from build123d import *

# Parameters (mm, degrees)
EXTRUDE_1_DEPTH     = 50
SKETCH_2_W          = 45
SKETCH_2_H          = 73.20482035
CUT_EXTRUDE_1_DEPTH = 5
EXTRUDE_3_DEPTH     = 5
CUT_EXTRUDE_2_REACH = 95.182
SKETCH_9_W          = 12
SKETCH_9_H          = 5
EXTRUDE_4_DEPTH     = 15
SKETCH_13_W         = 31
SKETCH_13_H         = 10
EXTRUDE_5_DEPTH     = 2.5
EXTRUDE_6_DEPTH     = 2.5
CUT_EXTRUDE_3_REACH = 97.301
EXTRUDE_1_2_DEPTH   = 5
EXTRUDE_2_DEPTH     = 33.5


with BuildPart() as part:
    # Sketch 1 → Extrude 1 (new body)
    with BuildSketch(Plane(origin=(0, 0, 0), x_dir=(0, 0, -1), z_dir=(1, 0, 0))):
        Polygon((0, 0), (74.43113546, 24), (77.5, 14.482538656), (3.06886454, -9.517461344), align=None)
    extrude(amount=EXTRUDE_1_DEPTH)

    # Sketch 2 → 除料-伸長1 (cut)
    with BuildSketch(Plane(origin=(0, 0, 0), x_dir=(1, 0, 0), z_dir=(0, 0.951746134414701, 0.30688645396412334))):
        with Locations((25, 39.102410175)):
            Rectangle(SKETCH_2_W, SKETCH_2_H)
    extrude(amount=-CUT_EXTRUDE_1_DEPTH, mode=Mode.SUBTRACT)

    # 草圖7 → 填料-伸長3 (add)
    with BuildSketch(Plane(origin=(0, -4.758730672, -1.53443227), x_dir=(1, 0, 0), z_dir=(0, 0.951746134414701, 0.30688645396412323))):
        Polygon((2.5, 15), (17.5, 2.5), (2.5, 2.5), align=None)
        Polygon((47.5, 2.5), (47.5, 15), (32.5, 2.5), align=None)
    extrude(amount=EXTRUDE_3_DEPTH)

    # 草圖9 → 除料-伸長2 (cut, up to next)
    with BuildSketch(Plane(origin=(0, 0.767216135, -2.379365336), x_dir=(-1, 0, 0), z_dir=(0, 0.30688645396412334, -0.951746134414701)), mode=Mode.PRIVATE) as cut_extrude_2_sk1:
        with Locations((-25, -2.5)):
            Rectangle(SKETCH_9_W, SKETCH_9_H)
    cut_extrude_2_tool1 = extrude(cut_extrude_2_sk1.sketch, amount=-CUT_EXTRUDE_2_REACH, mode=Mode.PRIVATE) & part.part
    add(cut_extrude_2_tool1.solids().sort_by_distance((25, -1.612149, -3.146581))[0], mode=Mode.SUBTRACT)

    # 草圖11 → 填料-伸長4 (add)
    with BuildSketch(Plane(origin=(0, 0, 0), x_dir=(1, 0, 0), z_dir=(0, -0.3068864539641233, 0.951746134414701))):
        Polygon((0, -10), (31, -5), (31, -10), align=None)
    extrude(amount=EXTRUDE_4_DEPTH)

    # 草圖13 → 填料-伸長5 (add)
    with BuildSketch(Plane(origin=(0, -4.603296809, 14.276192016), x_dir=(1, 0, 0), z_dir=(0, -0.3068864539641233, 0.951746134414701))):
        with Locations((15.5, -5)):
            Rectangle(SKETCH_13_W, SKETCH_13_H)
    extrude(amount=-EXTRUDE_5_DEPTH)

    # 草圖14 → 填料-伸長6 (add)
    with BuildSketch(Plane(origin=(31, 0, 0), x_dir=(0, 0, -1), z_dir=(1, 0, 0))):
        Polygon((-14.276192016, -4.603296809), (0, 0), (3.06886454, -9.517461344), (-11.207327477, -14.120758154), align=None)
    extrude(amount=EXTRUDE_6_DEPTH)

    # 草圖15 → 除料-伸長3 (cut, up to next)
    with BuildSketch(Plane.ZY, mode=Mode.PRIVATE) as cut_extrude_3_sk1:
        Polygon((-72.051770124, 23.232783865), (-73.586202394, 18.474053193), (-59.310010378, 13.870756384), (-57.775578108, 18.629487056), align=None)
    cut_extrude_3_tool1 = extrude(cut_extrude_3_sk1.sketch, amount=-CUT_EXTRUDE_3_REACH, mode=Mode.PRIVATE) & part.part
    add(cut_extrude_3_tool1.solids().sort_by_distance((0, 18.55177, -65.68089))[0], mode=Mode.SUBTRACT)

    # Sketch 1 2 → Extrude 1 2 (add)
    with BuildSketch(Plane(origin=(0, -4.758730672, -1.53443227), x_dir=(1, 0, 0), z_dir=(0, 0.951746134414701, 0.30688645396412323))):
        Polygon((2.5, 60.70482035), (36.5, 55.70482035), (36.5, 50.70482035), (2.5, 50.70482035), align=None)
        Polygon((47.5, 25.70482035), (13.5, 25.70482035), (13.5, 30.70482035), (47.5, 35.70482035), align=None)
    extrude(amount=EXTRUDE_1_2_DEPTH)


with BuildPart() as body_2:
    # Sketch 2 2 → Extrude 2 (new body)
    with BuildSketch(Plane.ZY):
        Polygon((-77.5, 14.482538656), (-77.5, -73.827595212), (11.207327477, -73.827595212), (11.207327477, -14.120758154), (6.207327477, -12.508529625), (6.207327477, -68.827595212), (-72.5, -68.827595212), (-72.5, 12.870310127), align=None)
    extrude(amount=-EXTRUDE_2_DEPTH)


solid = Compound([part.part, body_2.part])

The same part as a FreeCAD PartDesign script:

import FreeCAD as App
import Part
import Sketcher

V = App.Vector

doc = App.newDocument("Part")
body = doc.addObject("PartDesign::Body", "Body")

# Sketch on YZ plane
sketch1 = body.newObject("Sketcher::SketchObject", "Sketch")
sketch1.AttachmentSupport = (doc.getObject("YZ_Plane"), [""])
sketch1.MapMode = "FlatFace"
sketch1.addGeometry([
    Part.LineSegment(V(24, -74, 0), V(0, 0, 0)),
    Part.LineSegment(V(0, 0, 0), V(-10, -3, 0)),
    Part.LineSegment(V(-10, -3, 0), V(14, -78, 0)),
    Part.LineSegment(V(14, -78, 0), V(24, -74, 0)),
], False)
sketch1.addConstraint([
    Sketcher.Constraint("Coincident", 0, 2, 1, 1),
    Sketcher.Constraint("Coincident", 1, 2, 2, 1),
    Sketcher.Constraint("Coincident", 2, 2, 3, 1),
    Sketcher.Constraint("Coincident", 3, 2, 0, 1),
    Sketcher.Constraint("Coincident", 0, 2, -1, 1),
    Sketcher.Constraint("Perpendicular", 0, 1),
    Sketcher.Constraint("Perpendicular", 1, 2),
    Sketcher.Constraint("Perpendicular", 2, 3),
    Sketcher.Constraint("Distance", 1, 10.0),
    Sketcher.Constraint("DistanceX", -1, 1, 3, 2, 24.0),
    Sketcher.Constraint("DistanceY", 2, 2, -1, 1, 77.5),
])
pad1 = body.newObject("PartDesign::Pad", "Pad")
pad1.Profile = sketch1
pad1.Length = 50

# Sketch on an angled plane
sketch2 = body.newObject("Sketcher::SketchObject", "Sketch001")
sketch2.Placement = App.Placement(V(0, 0, 0), App.Rotation(V(1, 0, 0), V(0, 0.306886454, -0.951746134), V(0, 0.951746134, 0.306886454), "ZXY"))
sketch2.addGeometry([
    Part.LineSegment(V(2, 76, 0), V(2, 2, 0)),
    Part.LineSegment(V(2, 2, 0), V(48, 2, 0)),
    Part.LineSegment(V(48, 2, 0), V(48, 76, 0)),
    Part.LineSegment(V(48, 76, 0), V(2, 76, 0)),
], False)
sketch2.addConstraint([
    Sketcher.Constraint("Coincident", 0, 2, 1, 1),
    Sketcher.Constraint("Coincident", 1, 2, 2, 1),
    Sketcher.Constraint("Coincident", 2, 2, 3, 1),
    Sketcher.Constraint("Coincident", 3, 2, 0, 1),
    Sketcher.Constraint("Vertical", 0),
    Sketcher.Constraint("Horizontal", 1),
    Sketcher.Constraint("Vertical", 2),
    Sketcher.Constraint("Horizontal", 3),
    Sketcher.Constraint("DistanceX", 1, 1, 1, 2, 45.0),
    Sketcher.Constraint("DistanceX", -1, 1, 0, 2, 2.5),
    Sketcher.Constraint("DistanceY", -1, 1, 0, 2, 2.5),
    Sketcher.Constraint("DistanceY", 0, 2, 0, 1, 73.20482),
])
pocket1 = body.newObject("PartDesign::Pocket", "Pocket")
pocket1.Profile = sketch2
pocket1.Length = 5

# Sketch on an angled plane
sketch3 = body.newObject("Sketcher::SketchObject", "Sketch002")
sketch3.Placement = App.Placement(V(0, -4.758731, -1.534432), App.Rotation(V(1, 0, 0), V(0, 0.306886454, -0.951746134), V(0, 0.951746134, 0.306886454), "ZXY"))
sketch3.addGeometry([
    Part.LineSegment(V(18, 2, 0), V(2, 15, 0)),  # 0
    Part.LineSegment(V(2, 15, 0), V(2, 2, 0)),  # 1
    Part.LineSegment(V(2, 2, 0), V(18, 2, 0)),  # 2
    Part.LineSegment(V(48, 2, 0), V(48, 15, 0)),  # 3
    Part.LineSegment(V(48, 15, 0), V(32, 2, 0)),  # 4
    Part.LineSegment(V(32, 2, 0), V(48, 2, 0)),  # 5
], False)
sketch3.addConstraint([
    Sketcher.Constraint("Coincident", 0, 2, 1, 1),
    Sketcher.Constraint("Coincident", 1, 2, 2, 1),
    Sketcher.Constraint("Coincident", 2, 2, 0, 1),
    Sketcher.Constraint("Coincident", 3, 2, 4, 1),
    Sketcher.Constraint("Coincident", 4, 2, 5, 1),
    Sketcher.Constraint("Coincident", 5, 2, 3, 1),
    Sketcher.Constraint("Vertical", 1),
    Sketcher.Constraint("Horizontal", 2),
    Sketcher.Constraint("Vertical", 3),
    Sketcher.Constraint("Horizontal", 5),
    Sketcher.Constraint("Horizontal", 0, 2, 3, 2),
    Sketcher.Constraint("Horizontal", 2, 2, 4, 2),
    Sketcher.Constraint("Equal", 2, 5),
    Sketcher.Constraint("DistanceX", 2, 1, 2, 2, 15.0),
    Sketcher.Constraint("DistanceY", 1, 2, 1, 1, 12.5),
    Sketcher.Constraint("DistanceY", -1, 1, 0, 2, 15.0),
    Sketcher.Constraint("DistanceX", 2, 2, 3, 2, 30.0),
    Sketcher.Constraint("DistanceX", -1, 1, 0, 2, 2.5),
])
pad2 = body.newObject("PartDesign::Pad", "Pad001")
pad2.Profile = sketch3
pad2.Length = 5

# Sketch on an angled plane
sketch4 = body.newObject("Sketcher::SketchObject", "Sketch003")
sketch4.Placement = App.Placement(V(0, 0.767216, -2.379365), App.Rotation(V(-1, 0, 0), V(0, 0.951746134, 0.306886454), V(0, 0.306886454, -0.951746134), "ZXY"))
sketch4.addGeometry([
    Part.LineSegment(V(-31, 0, 0), V(-31, -5, 0)),
    Part.LineSegment(V(-31, -5, 0), V(-19, -5, 0)),
    Part.LineSegment(V(-19, -5, 0), V(-19, 0, 0)),
    Part.LineSegment(V(-19, 0, 0), V(-31, 0, 0)),
], False)
sketch4.addConstraint([
    Sketcher.Constraint("Coincident", 0, 2, 1, 1),
    Sketcher.Constraint("Coincident", 1, 2, 2, 1),
    Sketcher.Constraint("Coincident", 2, 2, 3, 1),
    Sketcher.Constraint("Coincident", 3, 2, 0, 1),
    Sketcher.Constraint("Vertical", 0),
    Sketcher.Constraint("Horizontal", 1),
    Sketcher.Constraint("Vertical", 2),
    Sketcher.Constraint("Horizontal", 3),
    Sketcher.Constraint("PointOnObject", 2, 2, -1),
    Sketcher.Constraint("DistanceX", 1, 1, 1, 2, 12.0),
    Sketcher.Constraint("DistanceY", 0, 2, 0, 1, 5.0),
    Sketcher.Constraint("DistanceX", 0, 2, -1, 1, 31.0),
])
pocket2 = body.newObject("PartDesign::Pocket", "Pocket001")
pocket2.Profile = sketch4
pocket2.Type = "UpToFirst"

# Sketch on an angled plane
sketch5 = body.newObject("Sketcher::SketchObject", "Sketch004")
sketch5.Placement = App.Placement(V(0, 0, 0), App.Rotation(V(1, 0, 0), V(0, 0.951746134, 0.306886454), V(0, -0.306886454, 0.951746134), "ZXY"))
sketch5.addGeometry([
    Part.LineSegment(V(31, -5, 0), V(0, -10, 0)),
    Part.LineSegment(V(0, -10, 0), V(31, -10, 0)),
    Part.LineSegment(V(31, -10, 0), V(31, -5, 0)),
], False)
sketch5.addConstraint([
    Sketcher.Constraint("Coincident", 0, 2, 1, 1),
    Sketcher.Constraint("Coincident", 1, 2, 2, 1),
    Sketcher.Constraint("Coincident", 2, 2, 0, 1),
    Sketcher.Constraint("Horizontal", 1),
    Sketcher.Constraint("Vertical", 2),
    Sketcher.Constraint("PointOnObject", 0, 2, -2),
    Sketcher.Constraint("DistanceX", 1, 1, 1, 2, 31.0),
    Sketcher.Constraint("DistanceY", 2, 1, 2, 2, 5.0),
    Sketcher.Constraint("DistanceY", 0, 2, -1, 1, 10.0),
])
pad3 = body.newObject("PartDesign::Pad", "Pad002")
pad3.Profile = sketch5
pad3.Length = 15

# Sketch on an angled plane
sketch6 = body.newObject("Sketcher::SketchObject", "Sketch005")
sketch6.Placement = App.Placement(V(0, -4.603297, 14.276192), App.Rotation(V(1, 0, 0), V(0, 0.951746134, 0.306886454), V(0, -0.306886454, 0.951746134), "ZXY"))
sketch6.addGeometry([
    Part.LineSegment(V(0, 0, 0), V(0, -10, 0)),
    Part.LineSegment(V(0, -10, 0), V(31, -10, 0)),
    Part.LineSegment(V(31, -10, 0), V(31, 0, 0)),
    Part.LineSegment(V(31, 0, 0), V(0, 0, 0)),
], False)
sketch6.addConstraint([
    Sketcher.Constraint("Coincident", 0, 2, 1, 1),
    Sketcher.Constraint("Coincident", 1, 2, 2, 1),
    Sketcher.Constraint("Coincident", 2, 2, 3, 1),
    Sketcher.Constraint("Coincident", 3, 2, 0, 1),
    Sketcher.Constraint("Vertical", 0),
    Sketcher.Constraint("Horizontal", 1),
    Sketcher.Constraint("Vertical", 2),
    Sketcher.Constraint("Horizontal", 3),
    Sketcher.Constraint("Coincident", 3, 2, -1, 1),
    Sketcher.Constraint("DistanceX", 1, 1, 1, 2, 31.0),
    Sketcher.Constraint("DistanceY", 0, 2, 0, 1, 10.0),
])
pad4 = body.newObject("PartDesign::Pad", "Pad003")
pad4.Profile = sketch6
pad4.Length = 2.5
pad4.Reversed = True

# Sketch on YZ plane
sketch7 = body.newObject("Sketcher::SketchObject", "Sketch006")
sketch7.AttachmentSupport = (doc.getObject("YZ_Plane"), [""])
sketch7.MapMode = "FlatFace"
sketch7.AttachmentOffset = App.Placement(V(0, 0, 31), App.Rotation())
sketch7.addGeometry([
    Part.LineSegment(V(0, 0, 0), V(-5, 14, 0)),
    Part.LineSegment(V(-5, 14, 0), V(-14, 11, 0)),
    Part.LineSegment(V(-14, 11, 0), V(-10, -3, 0)),
    Part.LineSegment(V(-10, -3, 0), V(0, 0, 0)),
], False)
sketch7.addConstraint([
    Sketcher.Constraint("Coincident", 0, 2, 1, 1),
    Sketcher.Constraint("Coincident", 1, 2, 2, 1),
    Sketcher.Constraint("Coincident", 2, 2, 3, 1),
    Sketcher.Constraint("Coincident", 3, 2, 0, 1),
    Sketcher.Constraint("Coincident", 3, 2, -1, 1),
    Sketcher.Constraint("Perpendicular", 0, 1),
    Sketcher.Constraint("Perpendicular", 1, 2),
    Sketcher.Constraint("Perpendicular", 2, 3),
    Sketcher.Constraint("Distance", 0, 15.0),
    Sketcher.Constraint("Distance", 1, 10.0),
    Sketcher.Constraint("DistanceX", 1, 2, -1, 1, 14.120758),
])
pad5 = body.newObject("PartDesign::Pad", "Pad004")
pad5.Profile = sketch7
pad5.Length = 2.5

# Sketch on YZ plane
sketch8 = body.newObject("Sketcher::SketchObject", "Sketch007")
sketch8.AttachmentSupport = (doc.getObject("YZ_Plane"), [""])
sketch8.MapMode = "FlatFace"
sketch8.addGeometry([
    Part.LineSegment(V(23.2, -72.1, 0), V(18.5, -73.6, 0)),
    Part.LineSegment(V(18.5, -73.6, 0), V(13.9, -59.3, 0)),
    Part.LineSegment(V(13.9, -59.3, 0), V(18.6, -57.8, 0)),
    Part.LineSegment(V(18.6, -57.8, 0), V(23.2, -72.1, 0)),
], False)
sketch8.addConstraint([
    Sketcher.Constraint("Coincident", 0, 2, 1, 1),
    Sketcher.Constraint("Coincident", 1, 2, 2, 1),
    Sketcher.Constraint("Coincident", 2, 2, 3, 1),
    Sketcher.Constraint("Coincident", 3, 2, 0, 1),
    Sketcher.Constraint("Perpendicular", 0, 1),
    Sketcher.Constraint("Perpendicular", 1, 2),
    Sketcher.Constraint("Perpendicular", 2, 3),
    Sketcher.Constraint("Distance", 0, 5.0),
    Sketcher.Constraint("Distance", 1, 15.0),
    Sketcher.Constraint("DistanceY", 1, 2, -1, 1, 59.31001),
    Sketcher.Constraint("DistanceY", 2, 2, -1, 1, 57.775578),
    Sketcher.Constraint("DistanceX", -1, 1, 0, 2, 18.474053),
])
pocket3 = body.newObject("PartDesign::Pocket", "Pocket002")
pocket3.Profile = sketch8
pocket3.Type = "UpToFirst"
pocket3.Reversed = True

# Sketch on an angled plane
sketch9 = body.newObject("Sketcher::SketchObject", "Sketch008")
sketch9.Placement = App.Placement(V(0, -4.758731, -1.534432), App.Rotation(V(1, 0, 0), V(0, 0.306886454, -0.951746134), V(0, 0.951746134, 0.306886454), "ZXY"))
sketch9.addGeometry([
    Part.LineSegment(V(36.5, 55.7, 0), V(2.5, 60.7, 0)),  # 0
    Part.LineSegment(V(2.5, 60.7, 0), V(2.5, 50.7, 0)),  # 1
    Part.LineSegment(V(2.5, 50.7, 0), V(36.5, 50.7, 0)),  # 2
    Part.LineSegment(V(36.5, 50.7, 0), V(36.5, 55.7, 0)),  # 3
    Part.LineSegment(V(13.5, 25.7, 0), V(47.5, 25.7, 0)),  # 4
    Part.LineSegment(V(47.5, 25.7, 0), V(47.5, 35.7, 0)),  # 5
    Part.LineSegment(V(47.5, 35.7, 0), V(13.5, 30.7, 0)),  # 6
    Part.LineSegment(V(13.5, 30.7, 0), V(13.5, 25.7, 0)),  # 7
], False)
sketch9.addConstraint([
    Sketcher.Constraint("Coincident", 0, 2, 1, 1),
    Sketcher.Constraint("Coincident", 1, 2, 2, 1),
    Sketcher.Constraint("Coincident", 2, 2, 3, 1),
    Sketcher.Constraint("Coincident", 3, 2, 0, 1),
    Sketcher.Constraint("Coincident", 4, 2, 5, 1),
    Sketcher.Constraint("Coincident", 5, 2, 6, 1),
    Sketcher.Constraint("Coincident", 6, 2, 7, 1),
    Sketcher.Constraint("Coincident", 7, 2, 4, 1),
    Sketcher.Constraint("Vertical", 1),
    Sketcher.Constraint("Horizontal", 2),
    Sketcher.Constraint("Vertical", 3),
    Sketcher.Constraint("Horizontal", 4),
    Sketcher.Constraint("Vertical", 5),
    Sketcher.Constraint("Vertical", 7),
    Sketcher.Constraint("Equal", 2, 4),
    Sketcher.Constraint("Equal", 1, 5),
    Sketcher.Constraint("Equal", 3, 7),
    Sketcher.Constraint("DistanceX", 2, 1, 2, 2, 34.0),
    Sketcher.Constraint("DistanceY", 1, 2, 1, 1, 10.0),
    Sketcher.Constraint("DistanceY", 3, 1, 3, 2, 5.0),
    Sketcher.Constraint("DistanceX", 2, 2, 4, 2, 11.0),
    Sketcher.Constraint("DistanceY", 4, 2, 2, 2, 25.0),
    Sketcher.Constraint("DistanceX", -1, 1, 0, 2, 2.5),
    Sketcher.Constraint("DistanceY", -1, 1, 0, 2, 60.70482),
])
pad6 = body.newObject("PartDesign::Pad", "Pad005")
pad6.Profile = sketch9
pad6.Length = 5
body2 = doc.addObject("PartDesign::Body", "Body001")

# Sketch on YZ plane
sketch10 = body2.newObject("Sketcher::SketchObject", "Sketch009")
sketch10.AttachmentSupport = (doc.getObject("YZ_Plane001"), [""])
sketch10.MapMode = "FlatFace"
sketch10.addGeometry([
    Part.LineSegment(V(14, -78, 0), V(-74, -78, 0)),  # 0
    Part.LineSegment(V(-74, -78, 0), V(-74, 11, 0)),  # 1
    Part.LineSegment(V(-74, 11, 0), V(-14, 11, 0)),  # 2
    Part.LineSegment(V(-14, 11, 0), V(-13, 6, 0)),  # 3
    Part.LineSegment(V(-13, 6, 0), V(-69, 6, 0)),  # 4
    Part.LineSegment(V(-69, 6, 0), V(-69, -72, 0)),  # 5
    Part.LineSegment(V(-69, -72, 0), V(13, -72, 0)),  # 6
    Part.LineSegment(V(13, -72, 0), V(14, -78, 0)),  # 7
], False)
sketch10.addConstraint([
    Sketcher.Constraint("Coincident", 0, 2, 1, 1),
    Sketcher.Constraint("Coincident", 1, 2, 2, 1),
    Sketcher.Constraint("Coincident", 2, 2, 3, 1),
    Sketcher.Constraint("Coincident", 3, 2, 4, 1),
    Sketcher.Constraint("Coincident", 4, 2, 5, 1),
    Sketcher.Constraint("Coincident", 5, 2, 6, 1),
    Sketcher.Constraint("Coincident", 6, 2, 7, 1),
    Sketcher.Constraint("Coincident", 7, 2, 0, 1),
    Sketcher.Constraint("Horizontal", 0),
    Sketcher.Constraint("Vertical", 1),
    Sketcher.Constraint("Horizontal", 2),
    Sketcher.Constraint("Horizontal", 4),
    Sketcher.Constraint("Vertical", 5),
    Sketcher.Constraint("Horizontal", 6),
    Sketcher.Constraint("Parallel", 3, 7),
    Sketcher.Constraint("Equal", 3, 7),
    Sketcher.Constraint("DistanceY", 3, 2, 2, 2, 5.0),
    Sketcher.Constraint("DistanceX", 1, 2, 4, 2, 5.0),
    Sketcher.Constraint("DistanceY", 0, 2, -1, 1, 77.5),
    Sketcher.Constraint("Distance", 3, 5.253502),
    Sketcher.Constraint("DistanceX", 0, 2, 0, 1, 88.310134),
    Sketcher.Constraint("DistanceX", 2, 1, 2, 2, 59.706837),
    Sketcher.Constraint("DistanceY", 1, 1, 1, 2, 88.707327),
    Sketcher.Constraint("DistanceX", 2, 2, -1, 1, 14.120758),
])
pad7 = body2.newObject("PartDesign::Pad", "Pad006")
pad7.Profile = sketch10
pad7.Length = 33.5

doc.recompute()
